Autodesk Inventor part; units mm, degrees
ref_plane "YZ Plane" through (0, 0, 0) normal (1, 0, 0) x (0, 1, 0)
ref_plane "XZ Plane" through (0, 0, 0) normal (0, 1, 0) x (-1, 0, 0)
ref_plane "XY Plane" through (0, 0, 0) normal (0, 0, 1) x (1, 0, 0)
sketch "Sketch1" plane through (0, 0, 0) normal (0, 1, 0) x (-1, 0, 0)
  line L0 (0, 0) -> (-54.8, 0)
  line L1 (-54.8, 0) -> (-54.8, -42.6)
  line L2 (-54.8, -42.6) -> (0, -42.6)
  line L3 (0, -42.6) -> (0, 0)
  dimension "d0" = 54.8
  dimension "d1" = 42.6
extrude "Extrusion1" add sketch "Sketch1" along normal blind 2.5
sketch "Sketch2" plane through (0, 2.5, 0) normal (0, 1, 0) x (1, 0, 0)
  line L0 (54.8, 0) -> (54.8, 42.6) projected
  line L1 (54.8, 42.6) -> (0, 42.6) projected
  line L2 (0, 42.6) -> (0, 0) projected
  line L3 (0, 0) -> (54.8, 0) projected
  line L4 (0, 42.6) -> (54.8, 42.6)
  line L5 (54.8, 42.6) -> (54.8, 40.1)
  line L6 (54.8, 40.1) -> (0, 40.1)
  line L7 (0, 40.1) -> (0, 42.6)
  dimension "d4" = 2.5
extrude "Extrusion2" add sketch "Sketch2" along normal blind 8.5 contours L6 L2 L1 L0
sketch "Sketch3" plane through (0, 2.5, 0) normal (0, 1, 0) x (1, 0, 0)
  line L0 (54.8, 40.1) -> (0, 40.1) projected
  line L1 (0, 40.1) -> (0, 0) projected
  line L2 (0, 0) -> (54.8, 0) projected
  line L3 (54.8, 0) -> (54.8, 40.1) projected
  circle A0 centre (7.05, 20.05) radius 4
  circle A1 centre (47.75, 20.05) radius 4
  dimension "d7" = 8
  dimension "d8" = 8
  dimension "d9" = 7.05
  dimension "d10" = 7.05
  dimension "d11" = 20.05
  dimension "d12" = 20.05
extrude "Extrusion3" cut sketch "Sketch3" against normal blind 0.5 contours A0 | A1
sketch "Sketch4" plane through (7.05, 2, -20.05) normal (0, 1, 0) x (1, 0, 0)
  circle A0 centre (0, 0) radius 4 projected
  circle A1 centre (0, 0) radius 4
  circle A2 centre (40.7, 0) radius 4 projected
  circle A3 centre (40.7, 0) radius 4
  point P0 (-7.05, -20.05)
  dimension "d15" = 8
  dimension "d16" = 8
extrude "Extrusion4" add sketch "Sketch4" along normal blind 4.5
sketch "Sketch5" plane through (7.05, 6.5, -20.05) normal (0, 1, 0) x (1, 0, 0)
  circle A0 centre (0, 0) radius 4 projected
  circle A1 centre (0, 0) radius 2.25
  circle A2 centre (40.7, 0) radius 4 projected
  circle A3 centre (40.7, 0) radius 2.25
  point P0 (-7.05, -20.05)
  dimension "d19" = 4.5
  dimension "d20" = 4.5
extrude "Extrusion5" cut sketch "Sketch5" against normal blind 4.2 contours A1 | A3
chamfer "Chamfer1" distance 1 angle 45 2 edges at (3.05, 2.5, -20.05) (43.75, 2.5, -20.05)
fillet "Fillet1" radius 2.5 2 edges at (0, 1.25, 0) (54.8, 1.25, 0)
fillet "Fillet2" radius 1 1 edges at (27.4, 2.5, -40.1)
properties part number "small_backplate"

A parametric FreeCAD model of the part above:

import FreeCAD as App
import Part
import Sketcher
from FreeCAD import Vector


def edges_at(feature, points):
    """Names of the edges that pass closest to the given points."""
    edges = feature.Shape.Edges
    near = lambda p: min(range(len(edges)), key=lambda i: edges[i].distToShape(Part.Vertex(*p))[0])
    return sorted({f"Edge{near(p) + 1}" for p in points})

doc = App.newDocument("Part")
body = doc.addObject("PartDesign::Body", "Body")

sketch1 = body.newObject("Sketcher::SketchObject", "Sketch")
sketch1.AttachmentSupport = (doc.getObject("XZ_Plane"), [""])
sketch1.MapMode = "FlatFace"
sketch1.addGeometry([
    Part.LineSegment(Vector(0, -43, 0), Vector(0, 0, 0)),
    Part.LineSegment(Vector(0, 0, 0), Vector(55, 0, 0)),
    Part.LineSegment(Vector(55, 0, 0), Vector(55, -43, 0)),
    Part.LineSegment(Vector(55, -43, 0), Vector(0, -43, 0)),
], False)
sketch1.addConstraint([
    Sketcher.Constraint("Coincident", 0, 2, 1, 1),
    Sketcher.Constraint("Coincident", 1, 2, 2, 1),
    Sketcher.Constraint("Coincident", 2, 2, 3, 1),
    Sketcher.Constraint("Coincident", 3, 2, 0, 1),
    Sketcher.Constraint("Vertical", 0),
    Sketcher.Constraint("Horizontal", 1),
    Sketcher.Constraint("Vertical", 2),
    Sketcher.Constraint("Horizontal", 3),
    Sketcher.Constraint("Coincident", 0, 2, -1, 1),
    Sketcher.Constraint("DistanceX", 1, 1, 1, 2, 54.8),
    Sketcher.Constraint("DistanceY", 0, 1, 0, 2, 42.6),
])
pad1 = body.newObject("PartDesign::Pad", "Pad")
pad1.Profile = sketch1
pad1.Length = 2.5
pad1.Reversed = True

sketch2 = body.newObject("Sketcher::SketchObject", "Sketch001")
sketch2.AttachmentSupport = (doc.getObject("XZ_Plane"), [""])
sketch2.MapMode = "FlatFace"
sketch2.AttachmentOffset = App.Placement(Vector(0, 0, -2.5), App.Rotation())
sketch2.addGeometry([
    Part.LineSegment(Vector(0, -40.1, 0), Vector(54.8, -40.1, 0)),
    Part.LineSegment(Vector(54.8, -40.1, 0), Vector(54.8, -42.6, 0)),
    Part.LineSegment(Vector(54.8, -42.6, 0), Vector(0, -42.6, 0)),
    Part.LineSegment(Vector(0, -42.6, 0), Vector(0, -40.1, 0)),
], False)
sketch2.addConstraint([
    Sketcher.Constraint("Coincident", 0, 2, 1, 1),
    Sketcher.Constraint("Coincident", 1, 2, 2, 1),
    Sketcher.Constraint("Coincident", 2, 2, 3, 1),
    Sketcher.Constraint("Coincident", 3, 2, 0, 1),
    Sketcher.Constraint("Horizontal", 0),
    Sketcher.Constraint("Vertical", 1),
    Sketcher.Constraint("Horizontal", 2),
    Sketcher.Constraint("Vertical", 3),
    Sketcher.Constraint("PointOnObject", 2, 2, -2),
    Sketcher.Constraint("DistanceY", 1, 2, 1, 1, 2.5),
    Sketcher.Constraint("DistanceX", 0, 1, 0, 2, 54.8),
    Sketcher.Constraint("DistanceY", 0, 2, -1, 1, 40.1),
])
pad2 = body.newObject("PartDesign::Pad", "Pad001")
pad2.Profile = sketch2
pad2.Length = 8.5
pad2.Reversed = True

sketch3 = body.newObject("Sketcher::SketchObject", "Sketch002")
sketch3.AttachmentSupport = (doc.getObject("XZ_Plane"), [""])
sketch3.MapMode = "FlatFace"
sketch3.AttachmentOffset = App.Placement(Vector(0, 0, -2.5), App.Rotation())
sketch3.addGeometry([
    Part.Circle(Vector(7, -20.1, 0), Vector(0, 0, 1), 4),
    Part.Circle(Vector(47.8, -20.1, 0), Vector(0, 0, 1), 4),
], False)
sketch3.addConstraint([
    Sketcher.Constraint("Equal", 0, 1),
    Sketcher.Constraint("Horizontal", 0, 3, 1, 3),
    Sketcher.Constraint("Diameter", 0, 8.0),
    Sketcher.Constraint("DistanceX", -1, 1, 0, 3, 7.05),
    Sketcher.Constraint("DistanceY", 0, 3, -1, 1, 20.05),
    Sketcher.Constraint("DistanceX", 0, 3, 1, 3, 40.7),
])
pocket1 = body.newObject("PartDesign::Pocket", "Pocket")
pocket1.Profile = sketch3
pocket1.Length = 0.5
pocket1.Reversed = True

sketch4 = body.newObject("Sketcher::SketchObject", "Sketch003")
sketch4.AttachmentSupport = (doc.getObject("XZ_Plane"), [""])
sketch4.MapMode = "FlatFace"
sketch4.AttachmentOffset = App.Placement(Vector(0, 0, -2), App.Rotation())
sketch4.addGeometry([
    Part.Circle(Vector(7, -20.1, 0), Vector(0, 0, 1), 4),
    Part.Circle(Vector(47.8, -20.1, 0), Vector(0, 0, 1), 4),
], False)
sketch4.addConstraint([
    Sketcher.Constraint("Equal", 0, 1),
    Sketcher.Constraint("Horizontal", 0, 3, 1, 3),
    Sketcher.Constraint("Diameter", 0, 8.0),
    Sketcher.Constraint("DistanceX", 0, 3, 1, 3, 40.7),
    Sketcher.Constraint("DistanceX", -1, 1, 0, 3, 7.05),
    Sketcher.Constraint("DistanceY", 0, 3, -1, 1, 20.05),
])
pad3 = body.newObject("PartDesign::Pad", "Pad002")
pad3.Profile = sketch4
pad3.Length = 4.5
pad3.Reversed = True

sketch5 = body.newObject("Sketcher::SketchObject", "Sketch004")
sketch5.AttachmentSupport = (doc.getObject("XZ_Plane"), [""])
sketch5.MapMode = "FlatFace"
sketch5.AttachmentOffset = App.Placement(Vector(0, 0, -6.5), App.Rotation())
sketch5.addGeometry([
    Part.Circle(Vector(7, -20.1, 0), Vector(0, 0, 1), 2.2),
    Part.Circle(Vector(47.8, -20.1, 0), Vector(0, 0, 1), 2.2),
], False)
sketch5.addConstraint([
    Sketcher.Constraint("Equal", 0, 1),
    Sketcher.Constraint("Horizontal", 0, 3, 1, 3),
    Sketcher.Constraint("Diameter", 0, 4.5),
    Sketcher.Constraint("DistanceX", 0, 3, 1, 3, 40.7),
    Sketcher.Constraint("DistanceX", -1, 1, 0, 3, 7.05),
    Sketcher.Constraint("DistanceY", 0, 3, -1, 1, 20.05),
])
pocket2 = body.newObject("PartDesign::Pocket", "Pocket001")
pocket2.Profile = sketch5
pocket2.Length = 4.2
pocket2.Reversed = True
doc.recompute()

chamfer = body.newObject("PartDesign::Chamfer", "Chamfer")
chamfer.Base = (pocket2, edges_at(pocket2, [(3.05, 2.5, -20.05), (43.75, 2.5, -20.05)]))
chamfer.Size = 1
doc.recompute()

fillet = body.newObject("PartDesign::Fillet", "Fillet")
fillet.Base = (chamfer, edges_at(chamfer, [(0, 1.25, 0), (54.8, 1.25, 0)]))
fillet.Radius = 2.5
doc.recompute()

fillet2 = body.newObject("PartDesign::Fillet", "Fillet001")
fillet2.Base = (fillet, edges_at(fillet, [(27.4, 2.5, -40.1)]))
fillet2.Radius = 1

doc.recompute()
